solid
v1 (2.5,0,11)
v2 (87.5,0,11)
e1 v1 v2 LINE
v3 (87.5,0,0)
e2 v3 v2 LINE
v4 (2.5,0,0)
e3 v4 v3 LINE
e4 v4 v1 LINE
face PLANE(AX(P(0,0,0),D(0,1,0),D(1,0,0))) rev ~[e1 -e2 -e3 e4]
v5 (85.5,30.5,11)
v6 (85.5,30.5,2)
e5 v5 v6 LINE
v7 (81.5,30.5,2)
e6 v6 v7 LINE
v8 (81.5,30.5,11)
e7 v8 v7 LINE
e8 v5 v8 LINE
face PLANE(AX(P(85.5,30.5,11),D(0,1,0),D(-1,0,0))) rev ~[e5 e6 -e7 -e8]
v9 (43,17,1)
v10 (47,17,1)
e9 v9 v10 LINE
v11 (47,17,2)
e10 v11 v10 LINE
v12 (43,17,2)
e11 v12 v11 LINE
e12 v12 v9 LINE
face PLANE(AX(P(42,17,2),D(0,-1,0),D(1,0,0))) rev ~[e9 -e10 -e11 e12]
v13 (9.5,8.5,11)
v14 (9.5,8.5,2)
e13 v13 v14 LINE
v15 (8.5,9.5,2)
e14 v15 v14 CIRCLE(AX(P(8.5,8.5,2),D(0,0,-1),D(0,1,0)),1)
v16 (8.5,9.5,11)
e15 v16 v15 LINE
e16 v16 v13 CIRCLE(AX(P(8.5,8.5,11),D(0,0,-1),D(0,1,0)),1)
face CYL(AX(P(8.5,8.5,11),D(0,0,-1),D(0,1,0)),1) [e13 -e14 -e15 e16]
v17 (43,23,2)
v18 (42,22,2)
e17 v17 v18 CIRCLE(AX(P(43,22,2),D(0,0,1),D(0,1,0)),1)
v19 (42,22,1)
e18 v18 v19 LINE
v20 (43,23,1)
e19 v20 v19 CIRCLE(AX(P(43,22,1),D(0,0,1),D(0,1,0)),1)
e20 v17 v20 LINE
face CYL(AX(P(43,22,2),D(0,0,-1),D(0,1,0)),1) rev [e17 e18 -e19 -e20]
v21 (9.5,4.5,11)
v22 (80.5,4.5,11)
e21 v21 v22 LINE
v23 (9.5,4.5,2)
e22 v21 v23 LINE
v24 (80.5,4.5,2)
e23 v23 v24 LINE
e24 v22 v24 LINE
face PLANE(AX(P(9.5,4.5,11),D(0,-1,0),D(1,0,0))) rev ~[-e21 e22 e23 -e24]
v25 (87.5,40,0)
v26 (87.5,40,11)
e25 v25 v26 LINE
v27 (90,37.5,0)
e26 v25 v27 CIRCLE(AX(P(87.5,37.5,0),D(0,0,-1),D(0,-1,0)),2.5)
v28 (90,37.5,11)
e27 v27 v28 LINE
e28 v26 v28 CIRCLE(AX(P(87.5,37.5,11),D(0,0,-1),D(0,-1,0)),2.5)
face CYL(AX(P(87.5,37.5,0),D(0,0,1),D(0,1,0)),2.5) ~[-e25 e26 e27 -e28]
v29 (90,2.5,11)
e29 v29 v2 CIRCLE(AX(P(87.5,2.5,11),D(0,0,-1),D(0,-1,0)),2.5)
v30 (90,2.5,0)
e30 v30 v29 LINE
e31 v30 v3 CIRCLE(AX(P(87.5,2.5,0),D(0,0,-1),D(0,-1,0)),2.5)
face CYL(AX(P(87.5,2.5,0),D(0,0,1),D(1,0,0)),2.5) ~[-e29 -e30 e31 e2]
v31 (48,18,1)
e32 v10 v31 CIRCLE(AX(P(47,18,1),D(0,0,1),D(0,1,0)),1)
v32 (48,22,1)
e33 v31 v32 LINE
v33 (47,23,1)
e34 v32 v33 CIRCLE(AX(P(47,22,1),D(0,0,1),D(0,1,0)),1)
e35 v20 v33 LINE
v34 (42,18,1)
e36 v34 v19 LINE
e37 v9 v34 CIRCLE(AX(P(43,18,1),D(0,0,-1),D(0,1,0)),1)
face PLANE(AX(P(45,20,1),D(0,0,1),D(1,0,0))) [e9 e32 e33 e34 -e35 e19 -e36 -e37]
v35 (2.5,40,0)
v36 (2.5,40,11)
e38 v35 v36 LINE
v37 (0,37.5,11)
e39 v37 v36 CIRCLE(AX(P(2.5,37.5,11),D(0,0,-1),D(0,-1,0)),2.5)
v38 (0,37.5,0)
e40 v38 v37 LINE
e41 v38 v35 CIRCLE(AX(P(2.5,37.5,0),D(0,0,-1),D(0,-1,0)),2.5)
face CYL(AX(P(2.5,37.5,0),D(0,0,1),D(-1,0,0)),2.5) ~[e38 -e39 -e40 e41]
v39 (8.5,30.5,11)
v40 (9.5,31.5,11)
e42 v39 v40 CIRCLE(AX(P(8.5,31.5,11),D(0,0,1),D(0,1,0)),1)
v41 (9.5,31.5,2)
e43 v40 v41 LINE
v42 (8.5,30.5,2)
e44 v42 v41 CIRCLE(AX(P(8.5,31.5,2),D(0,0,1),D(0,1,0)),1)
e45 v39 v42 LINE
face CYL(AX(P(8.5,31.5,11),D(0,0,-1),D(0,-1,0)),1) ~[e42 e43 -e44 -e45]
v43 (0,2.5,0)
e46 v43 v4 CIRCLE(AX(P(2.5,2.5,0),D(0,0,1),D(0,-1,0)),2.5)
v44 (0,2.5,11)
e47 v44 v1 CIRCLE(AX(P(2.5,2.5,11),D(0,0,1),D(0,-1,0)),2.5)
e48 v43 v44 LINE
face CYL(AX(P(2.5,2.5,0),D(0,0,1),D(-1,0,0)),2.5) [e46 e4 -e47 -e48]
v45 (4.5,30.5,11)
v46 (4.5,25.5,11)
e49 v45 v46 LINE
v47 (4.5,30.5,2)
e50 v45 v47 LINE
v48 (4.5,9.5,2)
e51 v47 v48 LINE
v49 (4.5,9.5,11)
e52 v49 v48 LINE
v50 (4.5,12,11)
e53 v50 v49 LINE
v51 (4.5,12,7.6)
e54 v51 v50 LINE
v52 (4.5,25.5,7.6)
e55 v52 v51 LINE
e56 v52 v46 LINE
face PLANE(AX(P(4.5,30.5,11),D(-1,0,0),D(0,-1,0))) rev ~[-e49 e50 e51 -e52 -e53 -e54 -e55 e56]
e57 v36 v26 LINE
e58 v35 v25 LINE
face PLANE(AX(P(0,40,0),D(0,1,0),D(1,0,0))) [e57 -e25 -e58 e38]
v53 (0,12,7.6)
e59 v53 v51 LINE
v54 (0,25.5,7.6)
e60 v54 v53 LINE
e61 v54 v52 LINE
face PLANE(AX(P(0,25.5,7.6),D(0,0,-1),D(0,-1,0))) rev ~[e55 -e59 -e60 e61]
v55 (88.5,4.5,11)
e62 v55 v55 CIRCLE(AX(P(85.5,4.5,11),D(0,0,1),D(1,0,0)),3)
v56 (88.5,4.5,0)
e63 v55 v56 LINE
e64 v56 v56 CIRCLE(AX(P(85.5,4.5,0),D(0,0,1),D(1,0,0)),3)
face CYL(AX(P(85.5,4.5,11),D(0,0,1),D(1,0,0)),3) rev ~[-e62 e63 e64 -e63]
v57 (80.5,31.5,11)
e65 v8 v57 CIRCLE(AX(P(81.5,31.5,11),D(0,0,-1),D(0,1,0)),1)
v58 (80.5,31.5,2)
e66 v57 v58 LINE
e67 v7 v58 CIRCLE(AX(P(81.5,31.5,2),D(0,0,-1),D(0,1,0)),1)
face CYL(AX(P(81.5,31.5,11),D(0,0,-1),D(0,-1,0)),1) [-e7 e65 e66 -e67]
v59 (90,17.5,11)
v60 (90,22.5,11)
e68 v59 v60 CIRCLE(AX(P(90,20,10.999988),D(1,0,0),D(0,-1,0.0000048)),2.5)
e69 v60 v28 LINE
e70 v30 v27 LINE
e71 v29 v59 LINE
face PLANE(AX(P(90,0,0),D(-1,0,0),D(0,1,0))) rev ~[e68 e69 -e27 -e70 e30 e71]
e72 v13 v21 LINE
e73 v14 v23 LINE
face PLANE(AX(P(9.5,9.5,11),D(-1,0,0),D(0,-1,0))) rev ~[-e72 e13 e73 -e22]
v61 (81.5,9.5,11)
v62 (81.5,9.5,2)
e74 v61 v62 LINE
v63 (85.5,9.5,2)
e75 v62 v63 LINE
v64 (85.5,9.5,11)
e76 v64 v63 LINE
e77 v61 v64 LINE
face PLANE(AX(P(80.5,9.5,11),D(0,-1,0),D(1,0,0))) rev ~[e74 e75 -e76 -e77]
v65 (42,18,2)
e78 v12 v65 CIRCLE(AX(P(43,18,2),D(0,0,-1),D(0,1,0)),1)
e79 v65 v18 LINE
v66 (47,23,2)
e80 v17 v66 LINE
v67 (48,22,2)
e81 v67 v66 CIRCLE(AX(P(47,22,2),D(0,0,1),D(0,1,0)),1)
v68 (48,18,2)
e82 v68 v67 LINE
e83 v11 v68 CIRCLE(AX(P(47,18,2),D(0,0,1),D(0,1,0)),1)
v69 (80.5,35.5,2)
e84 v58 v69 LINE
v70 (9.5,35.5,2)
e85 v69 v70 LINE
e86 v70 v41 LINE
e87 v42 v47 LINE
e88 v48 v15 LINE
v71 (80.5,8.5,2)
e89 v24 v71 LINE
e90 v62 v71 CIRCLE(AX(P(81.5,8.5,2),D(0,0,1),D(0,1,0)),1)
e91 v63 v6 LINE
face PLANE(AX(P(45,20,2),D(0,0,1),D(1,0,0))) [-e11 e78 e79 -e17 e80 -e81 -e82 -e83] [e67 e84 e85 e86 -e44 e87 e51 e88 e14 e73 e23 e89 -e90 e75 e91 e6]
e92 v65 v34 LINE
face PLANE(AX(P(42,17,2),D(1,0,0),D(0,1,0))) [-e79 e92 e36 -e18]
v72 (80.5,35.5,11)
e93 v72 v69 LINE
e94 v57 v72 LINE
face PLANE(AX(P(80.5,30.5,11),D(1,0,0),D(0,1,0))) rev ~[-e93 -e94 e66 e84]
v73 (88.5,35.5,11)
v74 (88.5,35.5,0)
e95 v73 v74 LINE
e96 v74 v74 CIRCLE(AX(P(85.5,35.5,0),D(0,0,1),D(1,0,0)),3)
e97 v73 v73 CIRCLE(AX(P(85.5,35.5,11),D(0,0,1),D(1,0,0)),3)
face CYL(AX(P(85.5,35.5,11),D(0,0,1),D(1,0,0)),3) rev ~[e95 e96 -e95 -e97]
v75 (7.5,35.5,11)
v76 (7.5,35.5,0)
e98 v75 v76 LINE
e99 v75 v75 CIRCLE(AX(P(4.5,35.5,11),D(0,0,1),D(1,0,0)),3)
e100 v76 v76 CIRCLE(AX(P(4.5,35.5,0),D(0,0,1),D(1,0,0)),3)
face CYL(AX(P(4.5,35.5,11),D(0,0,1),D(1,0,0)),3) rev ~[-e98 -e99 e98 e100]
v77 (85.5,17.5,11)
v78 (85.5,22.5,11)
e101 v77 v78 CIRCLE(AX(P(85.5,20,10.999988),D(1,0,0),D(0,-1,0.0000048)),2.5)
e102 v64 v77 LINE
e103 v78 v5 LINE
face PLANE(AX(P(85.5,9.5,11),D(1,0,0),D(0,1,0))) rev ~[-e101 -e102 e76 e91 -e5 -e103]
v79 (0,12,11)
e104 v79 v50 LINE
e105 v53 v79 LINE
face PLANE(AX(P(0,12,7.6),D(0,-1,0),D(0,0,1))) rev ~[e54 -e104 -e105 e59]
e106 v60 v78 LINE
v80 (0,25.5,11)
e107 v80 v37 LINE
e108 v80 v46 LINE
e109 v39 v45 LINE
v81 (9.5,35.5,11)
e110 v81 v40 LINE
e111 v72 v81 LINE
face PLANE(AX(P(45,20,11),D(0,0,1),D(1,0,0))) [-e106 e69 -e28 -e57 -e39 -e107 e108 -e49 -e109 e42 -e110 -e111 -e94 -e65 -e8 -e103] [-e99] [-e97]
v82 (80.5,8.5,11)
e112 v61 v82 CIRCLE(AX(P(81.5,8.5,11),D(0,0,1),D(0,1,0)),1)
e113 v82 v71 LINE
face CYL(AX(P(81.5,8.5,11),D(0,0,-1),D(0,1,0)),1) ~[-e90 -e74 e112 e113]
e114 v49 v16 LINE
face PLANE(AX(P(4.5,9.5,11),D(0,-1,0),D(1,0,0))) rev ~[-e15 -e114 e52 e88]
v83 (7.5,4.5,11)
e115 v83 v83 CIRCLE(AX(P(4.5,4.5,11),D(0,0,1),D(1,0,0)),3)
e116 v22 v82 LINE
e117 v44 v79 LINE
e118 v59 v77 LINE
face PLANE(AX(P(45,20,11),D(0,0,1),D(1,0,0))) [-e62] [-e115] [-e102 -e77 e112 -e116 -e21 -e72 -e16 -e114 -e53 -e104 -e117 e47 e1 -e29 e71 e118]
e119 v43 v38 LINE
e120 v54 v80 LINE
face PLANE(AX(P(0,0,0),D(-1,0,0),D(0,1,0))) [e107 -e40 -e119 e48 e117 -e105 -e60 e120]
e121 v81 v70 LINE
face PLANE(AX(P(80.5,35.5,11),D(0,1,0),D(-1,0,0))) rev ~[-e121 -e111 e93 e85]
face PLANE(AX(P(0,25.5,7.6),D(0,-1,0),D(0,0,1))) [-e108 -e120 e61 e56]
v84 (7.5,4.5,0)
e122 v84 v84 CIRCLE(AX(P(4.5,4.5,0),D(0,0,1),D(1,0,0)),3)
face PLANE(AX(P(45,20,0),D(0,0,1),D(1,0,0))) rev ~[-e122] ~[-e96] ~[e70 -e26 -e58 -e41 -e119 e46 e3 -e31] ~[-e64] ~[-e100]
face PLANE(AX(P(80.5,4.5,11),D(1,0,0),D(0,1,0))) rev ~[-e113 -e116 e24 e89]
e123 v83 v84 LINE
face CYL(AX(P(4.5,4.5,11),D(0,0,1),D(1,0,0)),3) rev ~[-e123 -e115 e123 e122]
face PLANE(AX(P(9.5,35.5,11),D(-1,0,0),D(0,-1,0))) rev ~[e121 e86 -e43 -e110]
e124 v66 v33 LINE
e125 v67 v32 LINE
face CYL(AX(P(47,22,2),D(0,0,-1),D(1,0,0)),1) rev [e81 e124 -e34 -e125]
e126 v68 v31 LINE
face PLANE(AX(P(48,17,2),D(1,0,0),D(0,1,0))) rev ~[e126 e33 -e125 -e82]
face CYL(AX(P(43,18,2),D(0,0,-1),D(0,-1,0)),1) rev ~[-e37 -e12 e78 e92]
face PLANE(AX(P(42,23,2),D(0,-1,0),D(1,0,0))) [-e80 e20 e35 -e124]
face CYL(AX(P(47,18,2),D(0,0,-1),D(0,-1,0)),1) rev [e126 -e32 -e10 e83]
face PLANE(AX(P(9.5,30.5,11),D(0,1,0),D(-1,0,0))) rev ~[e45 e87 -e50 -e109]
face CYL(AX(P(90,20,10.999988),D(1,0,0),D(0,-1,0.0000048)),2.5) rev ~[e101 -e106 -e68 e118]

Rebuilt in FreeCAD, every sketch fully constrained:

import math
import FreeCAD as App
import Part
import Sketcher


def edges_at(feature, points):
    """Names of the edges that pass closest to the given points."""
    edges = feature.Shape.Edges
    near = lambda p: min(range(len(edges)), key=lambda i: edges[i].distToShape(Part.Vertex(*p))[0])
    return sorted({f"Edge{near(p) + 1}" for p in points})

doc = App.newDocument("Part")
body = doc.addObject("PartDesign::Body", "Body")

# Sketch on XY plane
sketch1 = body.newObject("Sketcher::SketchObject", "Sketch")
sketch1.AttachmentSupport = (doc.getObject("XY_Plane"), [""])
sketch1.MapMode = "FlatFace"
sketch1.addGeometry(Part.LineSegment(App.Vector(0, 40, 0), App.Vector(0, 0, 0)), False)
sketch1.addGeometry(Part.LineSegment(App.Vector(0, 0, 0), App.Vector(90, 0, 0)), False)
sketch1.addGeometry(Part.LineSegment(App.Vector(90, 0, 0), App.Vector(90, 40, 0)), False)
sketch1.addGeometry(Part.LineSegment(App.Vector(90, 40, 0), App.Vector(0, 40, 0)), False)
sketch1.addConstraint(Sketcher.Constraint("Coincident", 0, 2, 1, 1))
sketch1.addConstraint(Sketcher.Constraint("Coincident", 1, 2, 2, 1))
sketch1.addConstraint(Sketcher.Constraint("Coincident", 2, 2, 3, 1))
sketch1.addConstraint(Sketcher.Constraint("Coincident", 3, 2, 0, 1))
sketch1.addConstraint(Sketcher.Constraint("Vertical", 0))
sketch1.addConstraint(Sketcher.Constraint("Horizontal", 1))
sketch1.addConstraint(Sketcher.Constraint("Vertical", 2))
sketch1.addConstraint(Sketcher.Constraint("Horizontal", 3))
sketch1.addConstraint(Sketcher.Constraint("Coincident", 0, 2, -1, 1))
sketch1.addConstraint(Sketcher.Constraint("DistanceX", 1, 1, 1, 2, 90.0))
sketch1.addConstraint(Sketcher.Constraint("DistanceY", 0, 2, 0, 1, 40.0))
pad1 = body.newObject("PartDesign::Pad", "Pad")
pad1.Profile = sketch1
pad1.Length = 11

# Sketch on XY plane
sketch2 = body.newObject("Sketcher::SketchObject", "Sketch001")
sketch2.AttachmentSupport = (doc.getObject("XY_Plane"), [""])
sketch2.MapMode = "FlatFace"
sketch2.AttachmentOffset = App.Placement(App.Vector(0, 0, 11), App.Rotation())
sketch2.addGeometry(Part.LineSegment(App.Vector(4.5, 30.5, 0), App.Vector(4.5, 9.5, 0)), False)
sketch2.addGeometry(Part.LineSegment(App.Vector(4.5, 9.5, 0), App.Vector(9.5, 9.5, 0)), False)
sketch2.addGeometry(Part.LineSegment(App.Vector(9.5, 9.5, 0), App.Vector(9.5, 4.5, 0)), False)
sketch2.addGeometry(Part.LineSegment(App.Vector(9.5, 4.5, 0), App.Vector(80.5, 4.5, 0)), False)
sketch2.addGeometry(Part.LineSegment(App.Vector(80.5, 4.5, 0), App.Vector(80.5, 9.5, 0)), False)
sketch2.addGeometry(Part.LineSegment(App.Vector(80.5, 9.5, 0), App.Vector(85.5, 9.5, 0)), False)
sketch2.addGeometry(Part.LineSegment(App.Vector(85.5, 9.5, 0), App.Vector(85.5, 30.5, 0)), False)
sketch2.addGeometry(Part.LineSegment(App.Vector(85.5, 30.5, 0), App.Vector(80.5, 30.5, 0)), False)
sketch2.addGeometry(Part.LineSegment(App.Vector(80.5, 30.5, 0), App.Vector(80.5, 35.5, 0)), False)
sketch2.addGeometry(Part.LineSegment(App.Vector(80.5, 35.5, 0), App.Vector(9.5, 35.5, 0)), False)
sketch2.addGeometry(Part.LineSegment(App.Vector(9.5, 35.5, 0), App.Vector(9.5, 30.5, 0)), False)
sketch2.addGeometry(Part.LineSegment(App.Vector(9.5, 30.5, 0), App.Vector(4.5, 30.5, 0)), False)
sketch2.addConstraint(Sketcher.Constraint("Coincident", 0, 2, 1, 1))
sketch2.addConstraint(Sketcher.Constraint("Coincident", 1, 2, 2, 1))
sketch2.addConstraint(Sketcher.Constraint("Coincident", 2, 2, 3, 1))
sketch2.addConstraint(Sketcher.Constraint("Coincident", 3, 2, 4, 1))
sketch2.addConstraint(Sketcher.Constraint("Coincident", 4, 2, 5, 1))
sketch2.addConstraint(Sketcher.Constraint("Coincident", 5, 2, 6, 1))
sketch2.addConstraint(Sketcher.Constraint("Coincident", 6, 2, 7, 1))
sketch2.addConstraint(Sketcher.Constraint("Coincident", 7, 2, 8, 1))
sketch2.addConstraint(Sketcher.Constraint("Coincident", 8, 2, 9, 1))
sketch2.addConstraint(Sketcher.Constraint("Coincident", 9, 2, 10, 1))
sketch2.addConstraint(Sketcher.Constraint("Coincident", 10, 2, 11, 1))
sketch2.addConstraint(Sketcher.Constraint("Coincident", 11, 2, 0, 1))
sketch2.addConstraint(Sketcher.Constraint("Vertical", 0))
sketch2.addConstraint(Sketcher.Constraint("Horizontal", 1))
sketch2.addConstraint(Sketcher.Constraint("Vertical", 2))
sketch2.addConstraint(Sketcher.Constraint("Horizontal", 3))
sketch2.addConstraint(Sketcher.Constraint("Vertical", 4))
sketch2.addConstraint(Sketcher.Constraint("Horizontal", 5))
sketch2.addConstraint(Sketcher.Constraint("Vertical", 6))
sketch2.addConstraint(Sketcher.Constraint("Horizontal", 7))
sketch2.addConstraint(Sketcher.Constraint("Vertical", 8))
sketch2.addConstraint(Sketcher.Constraint("Horizontal", 9))
sketch2.addConstraint(Sketcher.Constraint("Vertical", 10))
sketch2.addConstraint(Sketcher.Constraint("Horizontal", 11))
sketch2.addConstraint(Sketcher.Constraint("Horizontal", 1, 2, 4, 2))
sketch2.addConstraint(Sketcher.Constraint("Horizontal", 7, 2, 10, 2))
sketch2.addConstraint(Sketcher.Constraint("Vertical", 4, 2, 7, 2))
sketch2.addConstraint(Sketcher.Constraint("Vertical", 2, 2, 9, 2))
sketch2.addConstraint(Sketcher.Constraint("Equal", 1, 5))
sketch2.addConstraint(Sketcher.Constraint("Equal", 11, 2))
sketch2.addConstraint(Sketcher.Constraint("Equal", 4, 8))
sketch2.addConstraint(Sketcher.Constraint("DistanceX", 1, 1, 1, 2, 5.0))
sketch2.addConstraint(Sketcher.Constraint("DistanceX", 3, 1, 3, 2, 71.0))
sketch2.addConstraint(Sketcher.Constraint("DistanceY", 0, 2, 0, 1, 21.0))
sketch2.addConstraint(Sketcher.Constraint("DistanceX", -1, 1, 0, 2, 4.5))
sketch2.addConstraint(Sketcher.Constraint("DistanceY", -1, 1, 0, 2, 9.5))
pocket1 = body.newObject("PartDesign::Pocket", "Pocket")
pocket1.Profile = sketch2
pocket1.Length = 9

# Sketch on YZ plane
sketch3 = body.newObject("Sketcher::SketchObject", "Sketch002")
sketch3.AttachmentSupport = (doc.getObject("YZ_Plane"), [""])
sketch3.MapMode = "FlatFace"
sketch3.AttachmentOffset = App.Placement(App.Vector(0, 0, 90), App.Rotation())
sketch3.addGeometry(Part.ArcOfCircle(Part.Circle(App.Vector(20, 10.999988, 0), App.Vector(0, 0, 1), 2.5), math.radians(179.999725), math.radians(360.000275)), False)
sketch3.addGeometry(Part.LineSegment(App.Vector(22.5, 11, 0), App.Vector(17.5, 11, 0)), False)
sketch3.addConstraint(Sketcher.Constraint("Coincident", 0, 1, 1, 2))
sketch3.addConstraint(Sketcher.Constraint("Coincident", 1, 1, 0, 2))
sketch3.addConstraint(Sketcher.Constraint("Horizontal", 1))
sketch3.addConstraint(Sketcher.Constraint("Radius", 0, 2.5))
sketch3.addConstraint(Sketcher.Constraint("DistanceX", -1, 1, 0, 3, 20.0))
sketch3.addConstraint(Sketcher.Constraint("DistanceY", -1, 1, 0, 1, 11.0))
sketch3.addConstraint(Sketcher.Constraint("DistanceY", -1, 1, 0, 3, 10.999988))
pocket2 = body.newObject("PartDesign::Pocket", "Pocket001")
pocket2.Profile = sketch3
pocket2.Length = 6

# Sketch on YZ plane
sketch4 = body.newObject("Sketcher::SketchObject", "Sketch003")
sketch4.AttachmentSupport = (doc.getObject("YZ_Plane"), [""])
sketch4.MapMode = "FlatFace"
sketch4.addGeometry(Part.LineSegment(App.Vector(25.5, 11, 0), App.Vector(25.5, 7.6, 0)), False)
sketch4.addGeometry(Part.LineSegment(App.Vector(25.5, 7.6, 0), App.Vector(12, 7.6, 0)), False)
sketch4.addGeometry(Part.LineSegment(App.Vector(12, 7.6, 0), App.Vector(12, 11, 0)), False)
sketch4.addGeometry(Part.LineSegment(App.Vector(12, 11, 0), App.Vector(25.5, 11, 0)), False)
sketch4.addConstraint(Sketcher.Constraint("Coincident", 0, 2, 1, 1))
sketch4.addConstraint(Sketcher.Constraint("Coincident", 1, 2, 2, 1))
sketch4.addConstraint(Sketcher.Constraint("Coincident", 2, 2, 3, 1))
sketch4.addConstraint(Sketcher.Constraint("Coincident", 3, 2, 0, 1))
sketch4.addConstraint(Sketcher.Constraint("Vertical", 0))
sketch4.addConstraint(Sketcher.Constraint("Horizontal", 1))
sketch4.addConstraint(Sketcher.Constraint("Vertical", 2))
sketch4.addConstraint(Sketcher.Constraint("Horizontal", 3))
sketch4.addConstraint(Sketcher.Constraint("DistanceX", 1, 2, 1, 1, 13.5))
sketch4.addConstraint(Sketcher.Constraint("DistanceY", 0, 2, 0, 1, 3.4))
sketch4.addConstraint(Sketcher.Constraint("DistanceX", -1, 1, 1, 2, 12.0))
sketch4.addConstraint(Sketcher.Constraint("DistanceY", -1, 1, 2, 2, 11.0))
pocket3 = body.newObject("PartDesign::Pocket", "Pocket002")
pocket3.Profile = sketch4
pocket3.Length = 6
pocket3.Reversed = True

# Sketch on XY plane
sketch5 = body.newObject("Sketcher::SketchObject", "Sketch004")
sketch5.AttachmentSupport = (doc.getObject("XY_Plane"), [""])
sketch5.MapMode = "FlatFace"
sketch5.AttachmentOffset = App.Placement(App.Vector(0, 0, 11), App.Rotation())
sketch5.addGeometry(Part.Circle(App.Vector(4.5, 35.5, 0), App.Vector(0, 0, 1), 3), False)
sketch5.addGeometry(Part.Circle(App.Vector(4.5, 4.5, 0), App.Vector(0, 0, 1), 3), False)
sketch5.addGeometry(Part.Circle(App.Vector(85.5, 35.5, 0), App.Vector(0, 0, 1), 3), False)
sketch5.addGeometry(Part.Circle(App.Vector(85.5, 4.5, 0), App.Vector(0, 0, 1), 3), False)
sketch5.addConstraint(Sketcher.Constraint("Equal", 0, 1))
sketch5.addConstraint(Sketcher.Constraint("Equal", 1, 2))
sketch5.addConstraint(Sketcher.Constraint("Equal", 2, 3))
sketch5.addConstraint(Sketcher.Constraint("Horizontal", 0, 3, 2, 3))
sketch5.addConstraint(Sketcher.Constraint("Horizontal", 1, 3, 3, 3))
sketch5.addConstraint(Sketcher.Constraint("Vertical", 0, 3, 1, 3))
sketch5.addConstraint(Sketcher.Constraint("Vertical", 2, 3, 3, 3))
sketch5.addConstraint(Sketcher.Constraint("Diameter", 0, 6.0))
sketch5.addConstraint(Sketcher.Constraint("DistanceY", 1, 3, 0, 3, 31.0))
sketch5.addConstraint(Sketcher.Constraint("DistanceX", 0, 3, 2, 3, 81.0))
sketch5.addConstraint(Sketcher.Constraint("DistanceX", -1, 1, 0, 3, 4.5))
sketch5.addConstraint(Sketcher.Constraint("DistanceY", -1, 1, 0, 3, 35.5))
pocket4 = body.newObject("PartDesign::Pocket", "Pocket003")
pocket4.Profile = sketch5
pocket4.Length = 25
doc.recompute()

fillet = body.newObject("PartDesign::Fillet", "Fillet")
fillet.Base = (pocket4, edges_at(pocket4, [
    (9.5, 30.5, 6.5),
    (80.5, 30.5, 6.5),
    (9.5, 9.5, 6.5),
    (80.5, 9.5, 6.5),
]))
fillet.Radius = 1
doc.recompute()

fillet2 = body.newObject("PartDesign::Fillet", "Fillet001")
fillet2.Base = (fillet, edges_at(fillet, [
    (0, 40, 5.5),
    (90, 40, 5.5),
    (90, 0, 5.5),
    (0, 0, 5.5),
]))
fillet2.Radius = 2.5

# Sketch on XY plane
sketch6 = body.newObject("Sketcher::SketchObject", "Sketch005")
sketch6.AttachmentSupport = (doc.getObject("XY_Plane"), [""])
sketch6.MapMode = "FlatFace"
sketch6.AttachmentOffset = App.Placement(App.Vector(0, 0, 2), App.Rotation())
sketch6.addGeometry(Part.LineSegment(App.Vector(42, 23, 0), App.Vector(42, 17, 0)), False)
sketch6.addGeometry(Part.LineSegment(App.Vector(42, 17, 0), App.Vector(48, 17, 0)), False)
sketch6.addGeometry(Part.LineSegment(App.Vector(48, 17, 0), App.Vector(48, 23, 0)), False)
sketch6.addGeometry(Part.LineSegment(App.Vector(48, 23, 0), App.Vector(42, 23, 0)), False)
sketch6.addConstraint(Sketcher.Constraint("Coincident", 0, 2, 1, 1))
sketch6.addConstraint(Sketcher.Constraint("Coincident", 1, 2, 2, 1))
sketch6.addConstraint(Sketcher.Constraint("Coincident", 2, 2, 3, 1))
sketch6.addConstraint(Sketcher.Constraint("Coincident", 3, 2, 0, 1))
sketch6.addConstraint(Sketcher.Constraint("Vertical", 0))
sketch6.addConstraint(Sketcher.Constraint("Horizontal", 1))
sketch6.addConstraint(Sketcher.Constraint("Vertical", 2))
sketch6.addConstraint(Sketcher.Constraint("Horizontal", 3))
sketch6.addConstraint(Sketcher.Constraint("Equal", 3, 0))
sketch6.addConstraint(Sketcher.Constraint("DistanceX", 1, 1, 1, 2, 6.0))
sketch6.addConstraint(Sketcher.Constraint("DistanceX", -1, 1, 0, 2, 42.0))
sketch6.addConstraint(Sketcher.Constraint("DistanceY", -1, 1, 0, 2, 17.0))
pocket5 = body.newObject("PartDesign::Pocket", "Pocket004")
pocket5.Profile = sketch6
pocket5.Length = 1
doc.recompute()

fillet3 = body.newObject("PartDesign::Fillet", "Fillet002")
fillet3.Base = (pocket5, edges_at(pocket5, [
    (48, 23, 1.5),
    (42, 23, 1.5),
    (42, 17, 1.5),
    (48, 17, 1.5),
]))
fillet3.Radius = 1

doc.recompute()
